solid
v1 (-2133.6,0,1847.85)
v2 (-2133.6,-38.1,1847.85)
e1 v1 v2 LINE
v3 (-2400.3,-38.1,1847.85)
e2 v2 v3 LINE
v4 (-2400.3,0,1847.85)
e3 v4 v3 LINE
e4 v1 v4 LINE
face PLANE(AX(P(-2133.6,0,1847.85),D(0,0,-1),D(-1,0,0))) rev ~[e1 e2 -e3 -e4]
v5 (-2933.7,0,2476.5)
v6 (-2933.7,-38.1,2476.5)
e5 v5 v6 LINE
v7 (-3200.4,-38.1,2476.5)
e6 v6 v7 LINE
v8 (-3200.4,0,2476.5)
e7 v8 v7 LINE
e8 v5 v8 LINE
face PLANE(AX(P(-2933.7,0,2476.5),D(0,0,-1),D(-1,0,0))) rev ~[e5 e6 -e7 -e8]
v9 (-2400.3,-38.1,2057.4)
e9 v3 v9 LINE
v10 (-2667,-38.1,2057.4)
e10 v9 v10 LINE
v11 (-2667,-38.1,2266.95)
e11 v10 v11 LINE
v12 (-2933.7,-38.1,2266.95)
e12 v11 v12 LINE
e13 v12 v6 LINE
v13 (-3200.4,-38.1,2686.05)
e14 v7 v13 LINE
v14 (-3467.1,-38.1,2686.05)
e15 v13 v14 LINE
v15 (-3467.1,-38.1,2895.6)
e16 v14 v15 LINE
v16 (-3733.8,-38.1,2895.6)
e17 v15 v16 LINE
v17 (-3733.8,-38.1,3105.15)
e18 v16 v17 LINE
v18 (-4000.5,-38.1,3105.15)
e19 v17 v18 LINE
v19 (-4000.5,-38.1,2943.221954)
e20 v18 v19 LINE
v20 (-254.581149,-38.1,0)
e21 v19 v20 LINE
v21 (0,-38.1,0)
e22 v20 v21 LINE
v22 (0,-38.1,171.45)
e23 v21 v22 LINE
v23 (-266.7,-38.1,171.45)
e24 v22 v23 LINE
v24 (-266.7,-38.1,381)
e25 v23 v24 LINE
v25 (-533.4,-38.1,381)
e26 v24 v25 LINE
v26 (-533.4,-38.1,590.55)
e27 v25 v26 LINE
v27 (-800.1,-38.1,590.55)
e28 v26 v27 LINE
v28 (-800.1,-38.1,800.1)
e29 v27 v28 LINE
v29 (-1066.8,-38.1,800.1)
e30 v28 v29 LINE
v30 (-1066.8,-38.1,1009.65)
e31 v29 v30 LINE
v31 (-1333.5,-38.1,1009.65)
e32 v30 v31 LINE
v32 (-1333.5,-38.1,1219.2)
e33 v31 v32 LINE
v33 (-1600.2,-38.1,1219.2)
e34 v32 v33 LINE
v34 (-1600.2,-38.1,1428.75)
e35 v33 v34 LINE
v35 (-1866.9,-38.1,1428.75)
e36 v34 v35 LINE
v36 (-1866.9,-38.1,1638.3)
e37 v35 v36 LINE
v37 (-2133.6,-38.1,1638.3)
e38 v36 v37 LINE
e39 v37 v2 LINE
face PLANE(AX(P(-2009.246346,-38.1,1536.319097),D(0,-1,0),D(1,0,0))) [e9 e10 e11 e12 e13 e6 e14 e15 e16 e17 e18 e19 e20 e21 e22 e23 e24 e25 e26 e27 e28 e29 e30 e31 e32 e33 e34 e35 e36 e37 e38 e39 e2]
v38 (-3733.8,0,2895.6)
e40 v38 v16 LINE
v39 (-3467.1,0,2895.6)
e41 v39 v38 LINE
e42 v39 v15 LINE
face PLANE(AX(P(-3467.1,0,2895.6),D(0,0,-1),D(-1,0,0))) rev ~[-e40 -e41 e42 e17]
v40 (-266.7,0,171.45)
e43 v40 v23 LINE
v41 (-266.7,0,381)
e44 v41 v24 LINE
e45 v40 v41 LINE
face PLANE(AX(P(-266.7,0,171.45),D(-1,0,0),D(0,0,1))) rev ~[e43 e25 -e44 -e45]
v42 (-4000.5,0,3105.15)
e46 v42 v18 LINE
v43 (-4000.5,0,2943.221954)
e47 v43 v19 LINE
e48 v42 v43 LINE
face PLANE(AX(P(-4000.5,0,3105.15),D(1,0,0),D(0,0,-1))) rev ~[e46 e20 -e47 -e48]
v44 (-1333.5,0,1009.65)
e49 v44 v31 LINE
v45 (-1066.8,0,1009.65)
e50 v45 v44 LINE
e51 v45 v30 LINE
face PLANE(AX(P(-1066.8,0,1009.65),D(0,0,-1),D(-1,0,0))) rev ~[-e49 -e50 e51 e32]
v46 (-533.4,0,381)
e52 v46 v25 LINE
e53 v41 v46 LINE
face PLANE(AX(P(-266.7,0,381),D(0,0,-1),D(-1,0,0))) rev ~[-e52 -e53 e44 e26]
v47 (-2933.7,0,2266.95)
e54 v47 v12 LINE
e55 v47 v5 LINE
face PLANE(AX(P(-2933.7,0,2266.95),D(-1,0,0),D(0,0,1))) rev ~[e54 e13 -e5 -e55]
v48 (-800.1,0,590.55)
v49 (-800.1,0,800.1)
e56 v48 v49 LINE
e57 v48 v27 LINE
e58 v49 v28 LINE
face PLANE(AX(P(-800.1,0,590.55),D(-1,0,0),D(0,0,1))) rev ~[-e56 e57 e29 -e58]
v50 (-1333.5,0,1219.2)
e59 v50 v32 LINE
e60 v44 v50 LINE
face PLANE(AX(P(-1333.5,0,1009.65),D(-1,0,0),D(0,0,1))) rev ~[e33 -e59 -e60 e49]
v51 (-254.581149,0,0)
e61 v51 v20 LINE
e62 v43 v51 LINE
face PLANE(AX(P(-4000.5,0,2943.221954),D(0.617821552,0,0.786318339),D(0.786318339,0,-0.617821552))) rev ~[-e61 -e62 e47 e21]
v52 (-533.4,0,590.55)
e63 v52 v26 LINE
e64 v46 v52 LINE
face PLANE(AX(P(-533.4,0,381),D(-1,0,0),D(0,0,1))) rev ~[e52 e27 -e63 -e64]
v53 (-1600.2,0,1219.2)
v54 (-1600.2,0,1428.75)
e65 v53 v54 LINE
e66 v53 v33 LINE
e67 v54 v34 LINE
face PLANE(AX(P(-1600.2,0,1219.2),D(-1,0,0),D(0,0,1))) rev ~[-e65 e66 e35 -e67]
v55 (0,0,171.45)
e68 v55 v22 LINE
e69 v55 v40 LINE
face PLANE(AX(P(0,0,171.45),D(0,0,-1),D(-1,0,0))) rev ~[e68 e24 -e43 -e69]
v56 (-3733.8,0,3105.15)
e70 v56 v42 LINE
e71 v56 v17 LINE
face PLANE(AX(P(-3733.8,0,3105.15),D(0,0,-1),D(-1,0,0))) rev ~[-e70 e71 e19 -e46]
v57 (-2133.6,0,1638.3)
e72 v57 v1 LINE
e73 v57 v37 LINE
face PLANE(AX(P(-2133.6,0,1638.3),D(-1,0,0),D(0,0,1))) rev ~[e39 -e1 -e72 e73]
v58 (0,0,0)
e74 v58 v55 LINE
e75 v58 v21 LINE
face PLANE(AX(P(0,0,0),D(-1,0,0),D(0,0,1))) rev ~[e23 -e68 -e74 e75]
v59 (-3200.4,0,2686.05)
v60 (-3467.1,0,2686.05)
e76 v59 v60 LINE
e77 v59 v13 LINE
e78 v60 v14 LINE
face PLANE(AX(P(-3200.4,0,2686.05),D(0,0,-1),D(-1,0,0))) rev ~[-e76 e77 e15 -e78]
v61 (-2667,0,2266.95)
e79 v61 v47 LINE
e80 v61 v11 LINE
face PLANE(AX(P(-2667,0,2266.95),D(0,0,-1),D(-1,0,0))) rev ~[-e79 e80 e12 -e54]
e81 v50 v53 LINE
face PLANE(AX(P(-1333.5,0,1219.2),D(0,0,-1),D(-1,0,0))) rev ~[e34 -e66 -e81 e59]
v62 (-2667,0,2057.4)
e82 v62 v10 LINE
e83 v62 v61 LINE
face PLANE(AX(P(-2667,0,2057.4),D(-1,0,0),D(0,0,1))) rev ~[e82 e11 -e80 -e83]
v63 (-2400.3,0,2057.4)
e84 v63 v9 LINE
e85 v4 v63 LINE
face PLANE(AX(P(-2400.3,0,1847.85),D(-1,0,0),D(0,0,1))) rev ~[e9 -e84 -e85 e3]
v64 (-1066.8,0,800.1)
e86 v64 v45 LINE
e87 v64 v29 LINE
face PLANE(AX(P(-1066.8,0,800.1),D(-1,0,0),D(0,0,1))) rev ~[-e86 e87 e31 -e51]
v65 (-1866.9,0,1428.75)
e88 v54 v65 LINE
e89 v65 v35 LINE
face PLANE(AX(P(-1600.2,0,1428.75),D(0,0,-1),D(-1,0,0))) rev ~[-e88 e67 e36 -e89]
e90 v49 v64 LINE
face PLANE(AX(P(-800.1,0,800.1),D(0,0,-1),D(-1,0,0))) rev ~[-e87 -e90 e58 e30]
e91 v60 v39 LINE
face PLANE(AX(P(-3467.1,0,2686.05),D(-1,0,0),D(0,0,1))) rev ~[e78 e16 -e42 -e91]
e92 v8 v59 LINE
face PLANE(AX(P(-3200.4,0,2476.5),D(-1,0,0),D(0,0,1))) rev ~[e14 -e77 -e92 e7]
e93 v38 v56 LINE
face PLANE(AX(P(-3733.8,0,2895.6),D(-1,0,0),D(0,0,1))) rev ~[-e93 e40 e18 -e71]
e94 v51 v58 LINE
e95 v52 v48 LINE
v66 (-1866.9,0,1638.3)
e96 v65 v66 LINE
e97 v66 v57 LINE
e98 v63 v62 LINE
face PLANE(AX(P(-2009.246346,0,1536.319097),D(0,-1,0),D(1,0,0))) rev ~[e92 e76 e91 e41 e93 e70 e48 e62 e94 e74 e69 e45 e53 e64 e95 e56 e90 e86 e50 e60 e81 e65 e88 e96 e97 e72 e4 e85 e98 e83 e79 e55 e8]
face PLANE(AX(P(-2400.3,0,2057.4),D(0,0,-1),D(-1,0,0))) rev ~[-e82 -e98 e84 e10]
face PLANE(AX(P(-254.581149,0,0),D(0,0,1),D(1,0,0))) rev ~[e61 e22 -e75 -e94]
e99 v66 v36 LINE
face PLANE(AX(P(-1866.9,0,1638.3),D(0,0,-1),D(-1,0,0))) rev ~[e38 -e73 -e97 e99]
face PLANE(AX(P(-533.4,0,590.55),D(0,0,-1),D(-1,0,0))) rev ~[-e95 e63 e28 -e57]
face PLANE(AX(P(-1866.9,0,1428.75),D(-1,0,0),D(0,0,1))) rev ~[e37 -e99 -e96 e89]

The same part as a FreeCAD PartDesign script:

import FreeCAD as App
import Part
import Sketcher
Q = App.Units.Quantity


def add_polygon(sketch, points):
    """Adds a closed chain of lines whose ends are joined by coincident constraints."""
    first, n = sketch.GeometryCount, len(points)
    for a, b in zip(points, points[1:] + points[:1]):
        sketch.addGeometry(Part.LineSegment(App.Vector(*a, 0), App.Vector(*b, 0)), False)
    for i in range(n):
        sketch.addConstraint(Sketcher.Constraint("Coincident", first + i, 2, first + (i + 1) % n, 1))

doc = App.newDocument("Part")
body = doc.addObject("PartDesign::Body", "Body")

# Sketch on XZ plane
sketch1 = body.newObject("Sketcher::SketchObject", "Sketch")
sketch1.AttachmentSupport = (doc.getObject("XZ_Plane"), [""])
sketch1.MapMode = "FlatFace"
add_polygon(sketch1, [(-255, 0), (0, 0), (0, 171), (-267, 171), (-267, 381), (-533, 381), (-533, 591), (-800, 591), (-800, 800), (-1067, 800), (-1067, 1010), (-1334, 1010), (-1334, 1219), (-1600, 1219), (-1600, 1429), (-1867, 1429), (-1867, 1638), (-2134, 1638), (-2134, 1848), (-2400, 1848), (-2400, 2057), (-2667, 2057), (-2667, 2267), (-2934, 2267), (-2934, 2476), (-3200, 2476), (-3200, 2686), (-3467, 2686), (-3467, 2896), (-3734, 2896), (-3734, 3105), (-4000, 3105), (-4000, 2943)])  # lines 0-32
sketch1.addConstraint(Sketcher.Constraint("Horizontal", 0))
sketch1.addConstraint(Sketcher.Constraint("Vertical", 1))
sketch1.addConstraint(Sketcher.Constraint("Horizontal", 2))
sketch1.addConstraint(Sketcher.Constraint("Vertical", 3))
sketch1.addConstraint(Sketcher.Constraint("Horizontal", 4))
sketch1.addConstraint(Sketcher.Constraint("Vertical", 5))
sketch1.addConstraint(Sketcher.Constraint("Horizontal", 6))
sketch1.addConstraint(Sketcher.Constraint("Vertical", 7))
sketch1.addConstraint(Sketcher.Constraint("Horizontal", 8))
sketch1.addConstraint(Sketcher.Constraint("Vertical", 9))
sketch1.addConstraint(Sketcher.Constraint("Horizontal", 10))
sketch1.addConstraint(Sketcher.Constraint("Vertical", 11))
sketch1.addConstraint(Sketcher.Constraint("Horizontal", 12))
sketch1.addConstraint(Sketcher.Constraint("Vertical", 13))
sketch1.addConstraint(Sketcher.Constraint("Horizontal", 14))
sketch1.addConstraint(Sketcher.Constraint("Vertical", 15))
sketch1.addConstraint(Sketcher.Constraint("Horizontal", 16))
sketch1.addConstraint(Sketcher.Constraint("Vertical", 17))
sketch1.addConstraint(Sketcher.Constraint("Horizontal", 18))
sketch1.addConstraint(Sketcher.Constraint("Vertical", 19))
sketch1.addConstraint(Sketcher.Constraint("Horizontal", 20))
sketch1.addConstraint(Sketcher.Constraint("Vertical", 21))
sketch1.addConstraint(Sketcher.Constraint("Horizontal", 22))
sketch1.addConstraint(Sketcher.Constraint("Vertical", 23))
sketch1.addConstraint(Sketcher.Constraint("Horizontal", 24))
sketch1.addConstraint(Sketcher.Constraint("Vertical", 25))
sketch1.addConstraint(Sketcher.Constraint("Horizontal", 26))
sketch1.addConstraint(Sketcher.Constraint("Vertical", 27))
sketch1.addConstraint(Sketcher.Constraint("Horizontal", 28))
sketch1.addConstraint(Sketcher.Constraint("Vertical", 29))
sketch1.addConstraint(Sketcher.Constraint("Horizontal", 30))
sketch1.addConstraint(Sketcher.Constraint("Vertical", 31))
sketch1.addConstraint(Sketcher.Constraint("Coincident", 0, 2, -1, 1))
sketch1.addConstraint(Sketcher.Constraint("Equal", 2, 4))
sketch1.addConstraint(Sketcher.Constraint("Equal", 4, 6))
sketch1.addConstraint(Sketcher.Constraint("Equal", 6, 8))
sketch1.addConstraint(Sketcher.Constraint("Equal", 8, 10))
sketch1.addConstraint(Sketcher.Constraint("Equal", 10, 12))
sketch1.addConstraint(Sketcher.Constraint("Equal", 12, 14))
sketch1.addConstraint(Sketcher.Constraint("Equal", 14, 16))
sketch1.addConstraint(Sketcher.Constraint("Equal", 16, 18))
sketch1.addConstraint(Sketcher.Constraint("Equal", 18, 20))
sketch1.addConstraint(Sketcher.Constraint("Equal", 20, 22))
sketch1.addConstraint(Sketcher.Constraint("Equal", 22, 24))
sketch1.addConstraint(Sketcher.Constraint("Equal", 24, 26))
sketch1.addConstraint(Sketcher.Constraint("Equal", 26, 28))
sketch1.addConstraint(Sketcher.Constraint("Equal", 28, 30))
sketch1.addConstraint(Sketcher.Constraint("Equal", 3, 5))
sketch1.addConstraint(Sketcher.Constraint("Equal", 5, 7))
sketch1.addConstraint(Sketcher.Constraint("Equal", 7, 9))
sketch1.addConstraint(Sketcher.Constraint("Equal", 9, 11))
sketch1.addConstraint(Sketcher.Constraint("Equal", 11, 13))
sketch1.addConstraint(Sketcher.Constraint("Equal", 13, 15))
sketch1.addConstraint(Sketcher.Constraint("Equal", 15, 17))
sketch1.addConstraint(Sketcher.Constraint("Equal", 17, 19))
sketch1.addConstraint(Sketcher.Constraint("Equal", 19, 21))
sketch1.addConstraint(Sketcher.Constraint("Equal", 21, 23))
sketch1.addConstraint(Sketcher.Constraint("Equal", 23, 25))
sketch1.addConstraint(Sketcher.Constraint("Equal", 25, 27))
sketch1.addConstraint(Sketcher.Constraint("Equal", 27, 29))
sketch1.addConstraint(Sketcher.Constraint("DistanceX", 2, 2, 2, 1, Q("10.5 in")))
sketch1.addConstraint(Sketcher.Constraint("DistanceY", -1, 1, 3, 2, Q("15 in")))
sketch1.addConstraint(Sketcher.Constraint("DistanceY", -1, 1, 11, 2, Q("48 in")))
sketch1.addConstraint(Sketcher.Constraint("DistanceX", 0, 1, 0, 2, 254.581149))
sketch1.addConstraint(Sketcher.Constraint("DistanceY", 31, 2, 31, 1, 161.928046))
pad1 = body.newObject("PartDesign::Pad", "Pad")
pad1.Profile = sketch1
pad1.Length = Q("1.5 in")

doc.recompute()
